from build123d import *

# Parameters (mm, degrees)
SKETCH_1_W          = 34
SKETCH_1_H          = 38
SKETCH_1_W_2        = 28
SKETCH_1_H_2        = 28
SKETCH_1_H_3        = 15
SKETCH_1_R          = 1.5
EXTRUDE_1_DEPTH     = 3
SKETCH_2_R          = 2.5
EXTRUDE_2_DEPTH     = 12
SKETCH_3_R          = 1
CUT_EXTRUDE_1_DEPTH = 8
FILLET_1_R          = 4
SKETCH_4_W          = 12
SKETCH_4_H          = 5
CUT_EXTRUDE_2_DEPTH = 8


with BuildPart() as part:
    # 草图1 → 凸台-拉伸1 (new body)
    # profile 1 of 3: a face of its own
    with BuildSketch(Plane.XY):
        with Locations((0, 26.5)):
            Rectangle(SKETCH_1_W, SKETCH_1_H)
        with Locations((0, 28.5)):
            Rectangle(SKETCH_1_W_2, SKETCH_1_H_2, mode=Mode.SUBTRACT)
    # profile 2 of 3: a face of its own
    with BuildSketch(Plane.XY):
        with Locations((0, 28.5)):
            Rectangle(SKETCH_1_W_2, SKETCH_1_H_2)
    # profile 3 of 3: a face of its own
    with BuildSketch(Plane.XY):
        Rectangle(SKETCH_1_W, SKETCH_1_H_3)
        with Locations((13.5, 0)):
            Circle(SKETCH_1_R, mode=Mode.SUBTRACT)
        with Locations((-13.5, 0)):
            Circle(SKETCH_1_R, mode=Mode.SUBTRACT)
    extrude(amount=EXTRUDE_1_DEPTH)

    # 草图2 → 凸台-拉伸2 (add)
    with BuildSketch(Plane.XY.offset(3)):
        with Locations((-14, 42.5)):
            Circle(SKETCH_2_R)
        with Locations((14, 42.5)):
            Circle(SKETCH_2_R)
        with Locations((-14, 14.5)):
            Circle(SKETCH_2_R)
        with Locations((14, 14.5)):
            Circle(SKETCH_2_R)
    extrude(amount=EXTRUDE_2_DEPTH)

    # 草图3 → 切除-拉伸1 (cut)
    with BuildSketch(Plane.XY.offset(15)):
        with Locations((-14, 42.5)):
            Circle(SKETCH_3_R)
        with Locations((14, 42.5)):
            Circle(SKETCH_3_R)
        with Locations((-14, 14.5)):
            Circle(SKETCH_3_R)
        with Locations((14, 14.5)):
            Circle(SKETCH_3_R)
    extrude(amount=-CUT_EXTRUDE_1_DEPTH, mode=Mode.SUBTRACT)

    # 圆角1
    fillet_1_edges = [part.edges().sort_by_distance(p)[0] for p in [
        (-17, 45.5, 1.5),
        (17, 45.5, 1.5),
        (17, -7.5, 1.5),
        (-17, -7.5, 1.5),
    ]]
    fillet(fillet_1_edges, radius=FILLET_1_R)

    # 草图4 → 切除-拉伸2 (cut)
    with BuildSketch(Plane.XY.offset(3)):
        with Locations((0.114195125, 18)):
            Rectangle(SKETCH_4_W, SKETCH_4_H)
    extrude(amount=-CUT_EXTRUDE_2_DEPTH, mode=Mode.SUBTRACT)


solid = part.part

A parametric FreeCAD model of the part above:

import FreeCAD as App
import Part
import Sketcher

V = App.Vector
Q = App.Units.Quantity


def edges_at(feature, points):
    """Names of the edges that pass closest to the given points."""
    edges = feature.Shape.Edges
    near = lambda p: min(range(len(edges)), key=lambda i: edges[i].distToShape(Part.Vertex(*p))[0])
    return sorted({f"Edge{near(p) + 1}" for p in points})

doc = App.newDocument("Part")
body = doc.addObject("PartDesign::Body", "Body")

# Sketch on XY plane
sketch1 = body.newObject("Sketcher::SketchObject", "Sketch")
sketch1.AttachmentSupport = (doc.getObject("XY_Plane"), [""])
sketch1.MapMode = "FlatFace"
sketch1.addGeometry(Part.LineSegment(V(-17, 45.5, 0), V(-17, -7.5, 0)), False)
sketch1.addGeometry(Part.LineSegment(V(-17, -7.5, 0), V(17, -7.5, 0)), False)
sketch1.addGeometry(Part.LineSegment(V(17, -7.5, 0), V(17, 45.5, 0)), False)
sketch1.addGeometry(Part.LineSegment(V(17, 45.5, 0), V(-17, 45.5, 0)), False)
sketch1.addGeometry(Part.Circle(V(13.5, 0, 0), V(0, 0, 1), 1.5), False)
sketch1.addGeometry(Part.Circle(V(-13.5, 0, 0), V(0, 0, 1), 1.5), False)
sketch1.addConstraint(Sketcher.Constraint("Coincident", 0, 2, 1, 1))
sketch1.addConstraint(Sketcher.Constraint("Coincident", 1, 2, 2, 1))
sketch1.addConstraint(Sketcher.Constraint("Coincident", 2, 2, 3, 1))
sketch1.addConstraint(Sketcher.Constraint("Coincident", 3, 2, 0, 1))
sketch1.addConstraint(Sketcher.Constraint("Vertical", 0))
sketch1.addConstraint(Sketcher.Constraint("Horizontal", 1))
sketch1.addConstraint(Sketcher.Constraint("Vertical", 2))
sketch1.addConstraint(Sketcher.Constraint("Horizontal", 3))
sketch1.addConstraint(Sketcher.Constraint("Equal", 4, 5))
sketch1.addConstraint(Sketcher.Constraint("Symmetric", 4, 3, 5, 3, -1, 1))
sketch1.addConstraint(Sketcher.Constraint("PointOnObject", 4, 3, -1))
sketch1.addConstraint(Sketcher.Constraint("Diameter", 4, Q("3 mm")))
sketch1.addConstraint(Sketcher.Constraint("DistanceX", 1, 1, 1, 2, Q("34 mm")))
sketch1.addConstraint(Sketcher.Constraint("DistanceY", 0, 2, 0, 1, Q("53 mm")))
sketch1.addConstraint(Sketcher.Constraint("DistanceX", 0, 2, -1, 1, Q("17 mm")))
sketch1.addConstraint(Sketcher.Constraint("DistanceX", 5, 3, 4, 3, Q("27 mm")))
sketch1.addConstraint(Sketcher.Constraint("DistanceY", 0, 2, -1, 1, Q("7.5 mm")))
pad1 = body.newObject("PartDesign::Pad", "Pad")
pad1.Profile = sketch1
pad1.Length = 3

# Sketch on XY plane
sketch2 = body.newObject("Sketcher::SketchObject", "Sketch001")
sketch2.AttachmentSupport = (doc.getObject("XY_Plane"), [""])
sketch2.MapMode = "FlatFace"
sketch2.AttachmentOffset = App.Placement(V(0, 0, 3), App.Rotation())
sketch2.addGeometry(Part.Circle(V(-14, 42.5, 0), V(0, 0, 1), 2.5), False)
sketch2.addGeometry(Part.Circle(V(14, 42.5, 0), V(0, 0, 1), 2.5), False)
sketch2.addGeometry(Part.Circle(V(-14, 14.5, 0), V(0, 0, 1), 2.5), False)
sketch2.addGeometry(Part.Circle(V(14, 14.5, 0), V(0, 0, 1), 2.5), False)
sketch2.addConstraint(Sketcher.Constraint("Equal", 0, 1))
sketch2.addConstraint(Sketcher.Constraint("Equal", 1, 2))
sketch2.addConstraint(Sketcher.Constraint("Equal", 2, 3))
sketch2.addConstraint(Sketcher.Constraint("Symmetric", 0, 3, 1, 3, -2))
sketch2.addConstraint(Sketcher.Constraint("Symmetric", 2, 3, 3, 3, -2))
sketch2.addConstraint(Sketcher.Constraint("Vertical", 0, 3, 2, 3))
sketch2.addConstraint(Sketcher.Constraint("Diameter", 0, Q("5 mm")))
sketch2.addConstraint(Sketcher.Constraint("DistanceX", 0, 3, -1, 1, Q("14 mm")))
sketch2.addConstraint(Sketcher.Constraint("DistanceY", 2, 3, 0, 3, Q("28 mm")))
sketch2.addConstraint(Sketcher.Constraint("DistanceY", -1, 1, 0, 3, Q("42.5 mm")))
pad2 = body.newObject("PartDesign::Pad", "Pad001")
pad2.Profile = sketch2
pad2.Length = 12

# Sketch on XY plane
sketch3 = body.newObject("Sketcher::SketchObject", "Sketch002")
sketch3.AttachmentSupport = (doc.getObject("XY_Plane"), [""])
sketch3.MapMode = "FlatFace"
sketch3.AttachmentOffset = App.Placement(V(0, 0, 15), App.Rotation())
sketch3.addGeometry(Part.Circle(V(-14, 42.5, 0), V(0, 0, 1), 1), False)
sketch3.addGeometry(Part.Circle(V(14, 42.5, 0), V(0, 0, 1), 1), False)
sketch3.addGeometry(Part.Circle(V(-14, 14.5, 0), V(0, 0, 1), 1), False)
sketch3.addGeometry(Part.Circle(V(14, 14.5, 0), V(0, 0, 1), 1), False)
sketch3.addConstraint(Sketcher.Constraint("Equal", 0, 1))
sketch3.addConstraint(Sketcher.Constraint("Equal", 1, 2))
sketch3.addConstraint(Sketcher.Constraint("Equal", 2, 3))
sketch3.addConstraint(Sketcher.Constraint("Symmetric", 0, 3, 1, 3, -2))
sketch3.addConstraint(Sketcher.Constraint("Symmetric", 2, 3, 3, 3, -2))
sketch3.addConstraint(Sketcher.Constraint("Vertical", 0, 3, 2, 3))
sketch3.addConstraint(Sketcher.Constraint("Diameter", 0, Q("2 mm")))
sketch3.addConstraint(Sketcher.Constraint("DistanceX", 0, 3, -1, 1, Q("14 mm")))
sketch3.addConstraint(Sketcher.Constraint("DistanceY", 2, 3, 0, 3, Q("28 mm")))
sketch3.addConstraint(Sketcher.Constraint("DistanceY", -1, 1, 0, 3, Q("42.5 mm")))
pocket1 = body.newObject("PartDesign::Pocket", "Pocket")
pocket1.Profile = sketch3
pocket1.Length = 8
doc.recompute()

fillet = body.newObject("PartDesign::Fillet", "Fillet")
fillet.Base = (pocket1, edges_at(pocket1, [
    (-17, 45.5, 1.5),
    (17, 45.5, 1.5),
    (17, -7.5, 1.5),
    (-17, -7.5, 1.5),
]))
fillet.Radius = 4

# Sketch on XY plane
sketch4 = body.newObject("Sketcher::SketchObject", "Sketch003")
sketch4.AttachmentSupport = (doc.getObject("XY_Plane"), [""])
sketch4.MapMode = "FlatFace"
sketch4.AttachmentOffset = App.Placement(V(0, 0, 3), App.Rotation())
sketch4.addGeometry(Part.LineSegment(V(-6, 20, 0), V(-6, 16, 0)), False)
sketch4.addGeometry(Part.LineSegment(V(-6, 16, 0), V(6, 16, 0)), False)
sketch4.addGeometry(Part.LineSegment(V(6, 16, 0), V(6, 20, 0)), False)
sketch4.addGeometry(Part.LineSegment(V(6, 20, 0), V(-6, 20, 0)), False)
sketch4.addConstraint(Sketcher.Constraint("Coincident", 0, 2, 1, 1))
sketch4.addConstraint(Sketcher.Constraint("Coincident", 1, 2, 2, 1))
sketch4.addConstraint(Sketcher.Constraint("Coincident", 2, 2, 3, 1))
sketch4.addConstraint(Sketcher.Constraint("Coincident", 3, 2, 0, 1))
sketch4.addConstraint(Sketcher.Constraint("Vertical", 0))
sketch4.addConstraint(Sketcher.Constraint("Horizontal", 1))
sketch4.addConstraint(Sketcher.Constraint("Vertical", 2))
sketch4.addConstraint(Sketcher.Constraint("Horizontal", 3))
sketch4.addConstraint(Sketcher.Constraint("DistanceX", 1, 1, 1, 2, Q("12 mm")))
sketch4.addConstraint(Sketcher.Constraint("DistanceY", 0, 2, 0, 1, Q("5 mm")))
sketch4.addConstraint(Sketcher.Constraint("DistanceY", -1, 1, 0, 2, Q("15.5 mm")))
sketch4.addConstraint(Sketcher.Constraint("DistanceX", 0, 2, -1, 1, Q("5.885805 mm")))
pocket2 = body.newObject("PartDesign::Pocket", "Pocket001")
pocket2.Profile = sketch4
pocket2.Length = 8

doc.recompute()
